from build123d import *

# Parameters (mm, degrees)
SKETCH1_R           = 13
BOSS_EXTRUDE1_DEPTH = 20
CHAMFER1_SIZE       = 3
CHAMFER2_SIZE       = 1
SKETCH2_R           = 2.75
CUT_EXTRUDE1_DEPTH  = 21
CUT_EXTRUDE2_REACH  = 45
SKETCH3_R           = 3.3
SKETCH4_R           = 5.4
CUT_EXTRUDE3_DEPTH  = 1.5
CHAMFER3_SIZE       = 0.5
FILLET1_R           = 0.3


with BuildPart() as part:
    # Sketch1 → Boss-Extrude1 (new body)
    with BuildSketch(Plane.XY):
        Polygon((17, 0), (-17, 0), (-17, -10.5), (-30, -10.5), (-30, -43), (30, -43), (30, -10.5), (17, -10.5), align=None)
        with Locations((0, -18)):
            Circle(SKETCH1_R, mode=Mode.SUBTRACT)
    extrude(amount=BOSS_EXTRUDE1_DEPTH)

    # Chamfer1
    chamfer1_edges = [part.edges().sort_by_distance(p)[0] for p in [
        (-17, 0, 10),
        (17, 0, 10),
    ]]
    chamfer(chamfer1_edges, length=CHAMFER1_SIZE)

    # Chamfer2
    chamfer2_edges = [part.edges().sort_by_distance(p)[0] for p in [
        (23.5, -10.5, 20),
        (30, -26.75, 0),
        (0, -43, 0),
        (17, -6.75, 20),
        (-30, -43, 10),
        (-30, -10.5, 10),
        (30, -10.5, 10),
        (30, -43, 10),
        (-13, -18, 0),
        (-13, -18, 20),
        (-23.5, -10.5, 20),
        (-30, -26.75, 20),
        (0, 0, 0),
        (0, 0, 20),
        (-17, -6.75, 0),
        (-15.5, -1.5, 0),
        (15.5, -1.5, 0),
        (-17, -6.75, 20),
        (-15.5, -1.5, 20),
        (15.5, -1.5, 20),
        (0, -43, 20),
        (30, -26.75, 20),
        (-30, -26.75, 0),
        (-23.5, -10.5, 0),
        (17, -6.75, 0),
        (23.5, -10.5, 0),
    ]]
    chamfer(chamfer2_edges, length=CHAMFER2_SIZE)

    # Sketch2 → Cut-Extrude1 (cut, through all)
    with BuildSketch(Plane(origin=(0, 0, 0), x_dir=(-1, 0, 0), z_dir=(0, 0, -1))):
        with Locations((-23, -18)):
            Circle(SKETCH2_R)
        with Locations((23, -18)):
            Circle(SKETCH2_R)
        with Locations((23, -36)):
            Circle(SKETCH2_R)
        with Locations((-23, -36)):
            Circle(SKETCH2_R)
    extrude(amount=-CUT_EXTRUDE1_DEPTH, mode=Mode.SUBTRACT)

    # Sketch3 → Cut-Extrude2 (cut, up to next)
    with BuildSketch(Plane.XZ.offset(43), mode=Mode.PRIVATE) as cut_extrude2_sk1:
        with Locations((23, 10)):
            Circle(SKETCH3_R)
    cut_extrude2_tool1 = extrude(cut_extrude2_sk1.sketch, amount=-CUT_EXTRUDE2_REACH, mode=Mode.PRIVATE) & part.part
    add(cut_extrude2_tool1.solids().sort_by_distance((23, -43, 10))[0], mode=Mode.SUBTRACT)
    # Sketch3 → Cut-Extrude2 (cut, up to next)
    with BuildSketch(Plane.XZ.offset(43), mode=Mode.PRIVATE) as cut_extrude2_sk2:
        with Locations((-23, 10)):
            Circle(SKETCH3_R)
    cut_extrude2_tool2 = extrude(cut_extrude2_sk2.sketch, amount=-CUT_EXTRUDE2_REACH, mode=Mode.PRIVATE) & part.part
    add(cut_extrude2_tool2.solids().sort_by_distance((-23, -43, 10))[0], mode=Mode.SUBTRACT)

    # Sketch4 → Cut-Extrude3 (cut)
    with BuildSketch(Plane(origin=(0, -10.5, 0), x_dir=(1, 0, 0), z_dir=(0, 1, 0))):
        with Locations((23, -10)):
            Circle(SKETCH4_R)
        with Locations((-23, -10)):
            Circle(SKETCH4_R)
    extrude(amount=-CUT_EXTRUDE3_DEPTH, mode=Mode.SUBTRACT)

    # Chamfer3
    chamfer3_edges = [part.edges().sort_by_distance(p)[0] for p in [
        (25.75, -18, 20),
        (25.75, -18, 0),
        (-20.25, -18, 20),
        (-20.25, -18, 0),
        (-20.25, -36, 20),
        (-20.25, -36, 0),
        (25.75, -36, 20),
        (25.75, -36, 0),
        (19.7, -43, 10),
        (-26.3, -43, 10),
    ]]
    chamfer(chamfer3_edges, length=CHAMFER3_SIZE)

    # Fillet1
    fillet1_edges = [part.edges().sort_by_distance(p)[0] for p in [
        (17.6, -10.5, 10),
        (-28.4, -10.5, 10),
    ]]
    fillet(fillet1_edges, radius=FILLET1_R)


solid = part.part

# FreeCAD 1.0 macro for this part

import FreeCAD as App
import Part
import Sketcher
Q = App.Units.Quantity


def edges_at(feature, points):
    """Names of the edges that pass closest to the given points."""
    edges = feature.Shape.Edges
    near = lambda p: min(range(len(edges)), key=lambda i: edges[i].distToShape(Part.Vertex(*p))[0])
    return sorted({f"Edge{near(p) + 1}" for p in points})

doc = App.newDocument("Part")
body = doc.addObject("PartDesign::Body", "Body")

sketch1 = body.newObject("Sketcher::SketchObject", "Sketch")
sketch1.AttachmentSupport = (doc.getObject("XY_Plane"), [""])
sketch1.MapMode = "FlatFace"
sketch1.addGeometry([
    Part.LineSegment(App.Vector(17, 0, 0), App.Vector(-17, 0, 0)),
    Part.LineSegment(App.Vector(-17, 0, 0), App.Vector(-17, -10.5, 0)),
    Part.LineSegment(App.Vector(-17, -10.5, 0), App.Vector(-30, -10.5, 0)),
    Part.LineSegment(App.Vector(-30, -10.5, 0), App.Vector(-30, -43, 0)),
    Part.LineSegment(App.Vector(-30, -43, 0), App.Vector(30, -43, 0)),
    Part.LineSegment(App.Vector(30, -43, 0), App.Vector(30, -10.5, 0)),
    Part.LineSegment(App.Vector(30, -10.5, 0), App.Vector(17, -10.5, 0)),
    Part.LineSegment(App.Vector(17, -10.5, 0), App.Vector(17, 0, 0)),
    Part.Circle(App.Vector(0, -18, 0), App.Vector(0, 0, 1), 13),
], False)
sketch1.addConstraint([
    Sketcher.Constraint("Coincident", 0, 2, 1, 1),
    Sketcher.Constraint("Coincident", 1, 2, 2, 1),
    Sketcher.Constraint("Coincident", 2, 2, 3, 1),
    Sketcher.Constraint("Coincident", 3, 2, 4, 1),
    Sketcher.Constraint("Coincident", 4, 2, 5, 1),
    Sketcher.Constraint("Coincident", 5, 2, 6, 1),
    Sketcher.Constraint("Coincident", 6, 2, 7, 1),
    Sketcher.Constraint("Coincident", 7, 2, 0, 1),
    Sketcher.Constraint("Horizontal", 0),
    Sketcher.Constraint("Vertical", 1),
    Sketcher.Constraint("Horizontal", 2),
    Sketcher.Constraint("Vertical", 3),
    Sketcher.Constraint("Horizontal", 4),
    Sketcher.Constraint("Vertical", 5),
    Sketcher.Constraint("Horizontal", 6),
    Sketcher.Constraint("Vertical", 7),
    Sketcher.Constraint("Symmetric", 0, 2, 7, 2, -1, 1),
    Sketcher.Constraint("Symmetric", 2, 2, 5, 2, -2),
    Sketcher.Constraint("PointOnObject", 8, 3, -2),
    Sketcher.Constraint("Diameter", 8, Q("26 mm")),
    Sketcher.Constraint("DistanceX", 0, 2, 0, 1, Q("34 mm")),
    Sketcher.Constraint("DistanceX", 2, 2, 2, 1, Q("13 mm")),
    Sketcher.Constraint("DistanceY", 1, 2, 1, 1, Q("10.5 mm")),
    Sketcher.Constraint("DistanceY", 3, 2, 3, 1, Q("32.5 mm")),
    Sketcher.Constraint("DistanceY", 8, 3, -1, 1, Q("18 mm")),
])
pad1 = body.newObject("PartDesign::Pad", "Pad")
pad1.Profile = sketch1
pad1.Length = 20
doc.recompute()

chamfer = body.newObject("PartDesign::Chamfer", "Chamfer")
chamfer.Base = (pad1, edges_at(pad1, [(-17, 0, 10), (17, 0, 10)]))
chamfer.Size = 3
doc.recompute()

chamfer2 = body.newObject("PartDesign::Chamfer", "Chamfer001")
chamfer2.Base = (chamfer, edges_at(chamfer, [
    (23.5, -10.5, 20),
    (30, -26.75, 0),
    (0, -43, 0),
    (17, -6.75, 20),
    (-30, -43, 10),
    (-30, -10.5, 10),
    (30, -10.5, 10),
    (30, -43, 10),
    (-13, -18, 0),
    (-13, -18, 20),
    (-23.5, -10.5, 20),
    (-30, -26.75, 20),
    (0, 0, 0),
    (0, 0, 20),
    (-17, -6.75, 0),
    (-15.5, -1.5, 0),
    (15.5, -1.5, 0),
    (-17, -6.75, 20),
    (-15.5, -1.5, 20),
    (15.5, -1.5, 20),
    (0, -43, 20),
    (30, -26.75, 20),
    (-30, -26.75, 0),
    (-23.5, -10.5, 0),
    (17, -6.75, 0),
    (23.5, -10.5, 0),
]))
chamfer2.Size = 1

sketch2 = body.newObject("Sketcher::SketchObject", "Sketch001")
sketch2.AttachmentSupport = (doc.getObject("XY_Plane"), [""])
sketch2.MapMode = "FlatFace"
sketch2.addGeometry([
    Part.Circle(App.Vector(23, -18, 0), App.Vector(0, 0, 1), 2.75),
    Part.Circle(App.Vector(-23, -18, 0), App.Vector(0, 0, 1), 2.75),
    Part.Circle(App.Vector(-23, -36, 0), App.Vector(0, 0, 1), 2.75),
    Part.Circle(App.Vector(23, -36, 0), App.Vector(0, 0, 1), 2.75),
], False)
sketch2.addConstraint([
    Sketcher.Constraint("Equal", 0, 1),
    Sketcher.Constraint("Equal", 1, 2),
    Sketcher.Constraint("Equal", 2, 3),
    Sketcher.Constraint("Symmetric", 0, 3, 1, 3, -2),
    Sketcher.Constraint("Symmetric", 2, 3, 3, 3, -2),
    Sketcher.Constraint("Vertical", 1, 3, 2, 3),
    Sketcher.Constraint("Diameter", 0, Q("5.5 mm")),
    Sketcher.Constraint("DistanceX", -1, 1, 0, 3, Q("23 mm")),
    Sketcher.Constraint("DistanceY", 0, 3, -1, 1, Q("18 mm")),
    Sketcher.Constraint("DistanceY", 2, 3, -1, 1, Q("36 mm")),
])
pocket1 = body.newObject("PartDesign::Pocket", "Pocket")
pocket1.Profile = sketch2
pocket1.Type = "ThroughAll"
pocket1.Reversed = True

sketch3 = body.newObject("Sketcher::SketchObject", "Sketch002")
sketch3.AttachmentSupport = (doc.getObject("XZ_Plane"), [""])
sketch3.MapMode = "FlatFace"
sketch3.AttachmentOffset = App.Placement(App.Vector(0, 0, 43), App.Rotation())
sketch3.addGeometry(Part.Circle(App.Vector(23, 10, 0), App.Vector(0, 0, 1), 3.3), False)
sketch3.addConstraint([
    Sketcher.Constraint("Diameter", 0, Q("6.6 mm")),
    Sketcher.Constraint("DistanceX", -1, 1, 0, 3, Q("23 mm")),
    Sketcher.Constraint("DistanceY", -1, 1, 0, 3, Q("10 mm")),
])
pocket2 = body.newObject("PartDesign::Pocket", "Pocket001")
pocket2.Profile = sketch3
pocket2.Length = 32.5

sketch4 = body.newObject("Sketcher::SketchObject", "Sketch003")
sketch4.AttachmentSupport = (doc.getObject("XZ_Plane"), [""])
sketch4.MapMode = "FlatFace"
sketch4.AttachmentOffset = App.Placement(App.Vector(0, 0, 43), App.Rotation())
sketch4.addGeometry(Part.Circle(App.Vector(-23, 10, 0), App.Vector(0, 0, 1), 3.3), False)
sketch4.addConstraint([
    Sketcher.Constraint("Diameter", 0, Q("6.6 mm")),
    Sketcher.Constraint("DistanceX", 0, 3, -1, 1, Q("23 mm")),
    Sketcher.Constraint("DistanceY", -1, 1, 0, 3, Q("10 mm")),
])
pocket3 = body.newObject("PartDesign::Pocket", "Pocket002")
pocket3.Profile = sketch4
pocket3.Length = 32.5

sketch5 = body.newObject("Sketcher::SketchObject", "Sketch004")
sketch5.AttachmentSupport = (doc.getObject("XZ_Plane"), [""])
sketch5.MapMode = "FlatFace"
sketch5.AttachmentOffset = App.Placement(App.Vector(0, 0, 10.5), App.Rotation())
sketch5.addGeometry([
    Part.Circle(App.Vector(23, 10, 0), App.Vector(0, 0, 1), 5.4),
    Part.Circle(App.Vector(-23, 10, 0), App.Vector(0, 0, 1), 5.4),
], False)
sketch5.addConstraint([
    Sketcher.Constraint("Equal", 0, 1),
    Sketcher.Constraint("Symmetric", 0, 3, 1, 3, -2),
    Sketcher.Constraint("Diameter", 0, Q("10.8 mm")),
    Sketcher.Constraint("DistanceX", -1, 1, 0, 3, Q("23 mm")),
    Sketcher.Constraint("DistanceY", -1, 1, 0, 3, Q("10 mm")),
])
pocket4 = body.newObject("PartDesign::Pocket", "Pocket003")
pocket4.Profile = sketch5
pocket4.Length = 1.5
pocket4.Reversed = True
doc.recompute()

chamfer3 = body.newObject("PartDesign::Chamfer", "Chamfer002")
chamfer3.Base = (pocket4, edges_at(pocket4, [
    (25.75, -18, 20),
    (25.75, -18, 0),
    (-20.25, -18, 20),
    (-20.25, -18, 0),
    (-20.25, -36, 20),
    (-20.25, -36, 0),
    (25.75, -36, 20),
    (25.75, -36, 0),
    (19.7, -43, 10),
    (-26.3, -43, 10),
]))
chamfer3.Size = 0.5
doc.recompute()

fillet = body.newObject("PartDesign::Fillet", "Fillet")
fillet.Base = (chamfer3, edges_at(chamfer3, [(17.6, -10.5, 10), (-28.4, -10.5, 10)]))
fillet.Radius = 0.3

doc.recompute()
